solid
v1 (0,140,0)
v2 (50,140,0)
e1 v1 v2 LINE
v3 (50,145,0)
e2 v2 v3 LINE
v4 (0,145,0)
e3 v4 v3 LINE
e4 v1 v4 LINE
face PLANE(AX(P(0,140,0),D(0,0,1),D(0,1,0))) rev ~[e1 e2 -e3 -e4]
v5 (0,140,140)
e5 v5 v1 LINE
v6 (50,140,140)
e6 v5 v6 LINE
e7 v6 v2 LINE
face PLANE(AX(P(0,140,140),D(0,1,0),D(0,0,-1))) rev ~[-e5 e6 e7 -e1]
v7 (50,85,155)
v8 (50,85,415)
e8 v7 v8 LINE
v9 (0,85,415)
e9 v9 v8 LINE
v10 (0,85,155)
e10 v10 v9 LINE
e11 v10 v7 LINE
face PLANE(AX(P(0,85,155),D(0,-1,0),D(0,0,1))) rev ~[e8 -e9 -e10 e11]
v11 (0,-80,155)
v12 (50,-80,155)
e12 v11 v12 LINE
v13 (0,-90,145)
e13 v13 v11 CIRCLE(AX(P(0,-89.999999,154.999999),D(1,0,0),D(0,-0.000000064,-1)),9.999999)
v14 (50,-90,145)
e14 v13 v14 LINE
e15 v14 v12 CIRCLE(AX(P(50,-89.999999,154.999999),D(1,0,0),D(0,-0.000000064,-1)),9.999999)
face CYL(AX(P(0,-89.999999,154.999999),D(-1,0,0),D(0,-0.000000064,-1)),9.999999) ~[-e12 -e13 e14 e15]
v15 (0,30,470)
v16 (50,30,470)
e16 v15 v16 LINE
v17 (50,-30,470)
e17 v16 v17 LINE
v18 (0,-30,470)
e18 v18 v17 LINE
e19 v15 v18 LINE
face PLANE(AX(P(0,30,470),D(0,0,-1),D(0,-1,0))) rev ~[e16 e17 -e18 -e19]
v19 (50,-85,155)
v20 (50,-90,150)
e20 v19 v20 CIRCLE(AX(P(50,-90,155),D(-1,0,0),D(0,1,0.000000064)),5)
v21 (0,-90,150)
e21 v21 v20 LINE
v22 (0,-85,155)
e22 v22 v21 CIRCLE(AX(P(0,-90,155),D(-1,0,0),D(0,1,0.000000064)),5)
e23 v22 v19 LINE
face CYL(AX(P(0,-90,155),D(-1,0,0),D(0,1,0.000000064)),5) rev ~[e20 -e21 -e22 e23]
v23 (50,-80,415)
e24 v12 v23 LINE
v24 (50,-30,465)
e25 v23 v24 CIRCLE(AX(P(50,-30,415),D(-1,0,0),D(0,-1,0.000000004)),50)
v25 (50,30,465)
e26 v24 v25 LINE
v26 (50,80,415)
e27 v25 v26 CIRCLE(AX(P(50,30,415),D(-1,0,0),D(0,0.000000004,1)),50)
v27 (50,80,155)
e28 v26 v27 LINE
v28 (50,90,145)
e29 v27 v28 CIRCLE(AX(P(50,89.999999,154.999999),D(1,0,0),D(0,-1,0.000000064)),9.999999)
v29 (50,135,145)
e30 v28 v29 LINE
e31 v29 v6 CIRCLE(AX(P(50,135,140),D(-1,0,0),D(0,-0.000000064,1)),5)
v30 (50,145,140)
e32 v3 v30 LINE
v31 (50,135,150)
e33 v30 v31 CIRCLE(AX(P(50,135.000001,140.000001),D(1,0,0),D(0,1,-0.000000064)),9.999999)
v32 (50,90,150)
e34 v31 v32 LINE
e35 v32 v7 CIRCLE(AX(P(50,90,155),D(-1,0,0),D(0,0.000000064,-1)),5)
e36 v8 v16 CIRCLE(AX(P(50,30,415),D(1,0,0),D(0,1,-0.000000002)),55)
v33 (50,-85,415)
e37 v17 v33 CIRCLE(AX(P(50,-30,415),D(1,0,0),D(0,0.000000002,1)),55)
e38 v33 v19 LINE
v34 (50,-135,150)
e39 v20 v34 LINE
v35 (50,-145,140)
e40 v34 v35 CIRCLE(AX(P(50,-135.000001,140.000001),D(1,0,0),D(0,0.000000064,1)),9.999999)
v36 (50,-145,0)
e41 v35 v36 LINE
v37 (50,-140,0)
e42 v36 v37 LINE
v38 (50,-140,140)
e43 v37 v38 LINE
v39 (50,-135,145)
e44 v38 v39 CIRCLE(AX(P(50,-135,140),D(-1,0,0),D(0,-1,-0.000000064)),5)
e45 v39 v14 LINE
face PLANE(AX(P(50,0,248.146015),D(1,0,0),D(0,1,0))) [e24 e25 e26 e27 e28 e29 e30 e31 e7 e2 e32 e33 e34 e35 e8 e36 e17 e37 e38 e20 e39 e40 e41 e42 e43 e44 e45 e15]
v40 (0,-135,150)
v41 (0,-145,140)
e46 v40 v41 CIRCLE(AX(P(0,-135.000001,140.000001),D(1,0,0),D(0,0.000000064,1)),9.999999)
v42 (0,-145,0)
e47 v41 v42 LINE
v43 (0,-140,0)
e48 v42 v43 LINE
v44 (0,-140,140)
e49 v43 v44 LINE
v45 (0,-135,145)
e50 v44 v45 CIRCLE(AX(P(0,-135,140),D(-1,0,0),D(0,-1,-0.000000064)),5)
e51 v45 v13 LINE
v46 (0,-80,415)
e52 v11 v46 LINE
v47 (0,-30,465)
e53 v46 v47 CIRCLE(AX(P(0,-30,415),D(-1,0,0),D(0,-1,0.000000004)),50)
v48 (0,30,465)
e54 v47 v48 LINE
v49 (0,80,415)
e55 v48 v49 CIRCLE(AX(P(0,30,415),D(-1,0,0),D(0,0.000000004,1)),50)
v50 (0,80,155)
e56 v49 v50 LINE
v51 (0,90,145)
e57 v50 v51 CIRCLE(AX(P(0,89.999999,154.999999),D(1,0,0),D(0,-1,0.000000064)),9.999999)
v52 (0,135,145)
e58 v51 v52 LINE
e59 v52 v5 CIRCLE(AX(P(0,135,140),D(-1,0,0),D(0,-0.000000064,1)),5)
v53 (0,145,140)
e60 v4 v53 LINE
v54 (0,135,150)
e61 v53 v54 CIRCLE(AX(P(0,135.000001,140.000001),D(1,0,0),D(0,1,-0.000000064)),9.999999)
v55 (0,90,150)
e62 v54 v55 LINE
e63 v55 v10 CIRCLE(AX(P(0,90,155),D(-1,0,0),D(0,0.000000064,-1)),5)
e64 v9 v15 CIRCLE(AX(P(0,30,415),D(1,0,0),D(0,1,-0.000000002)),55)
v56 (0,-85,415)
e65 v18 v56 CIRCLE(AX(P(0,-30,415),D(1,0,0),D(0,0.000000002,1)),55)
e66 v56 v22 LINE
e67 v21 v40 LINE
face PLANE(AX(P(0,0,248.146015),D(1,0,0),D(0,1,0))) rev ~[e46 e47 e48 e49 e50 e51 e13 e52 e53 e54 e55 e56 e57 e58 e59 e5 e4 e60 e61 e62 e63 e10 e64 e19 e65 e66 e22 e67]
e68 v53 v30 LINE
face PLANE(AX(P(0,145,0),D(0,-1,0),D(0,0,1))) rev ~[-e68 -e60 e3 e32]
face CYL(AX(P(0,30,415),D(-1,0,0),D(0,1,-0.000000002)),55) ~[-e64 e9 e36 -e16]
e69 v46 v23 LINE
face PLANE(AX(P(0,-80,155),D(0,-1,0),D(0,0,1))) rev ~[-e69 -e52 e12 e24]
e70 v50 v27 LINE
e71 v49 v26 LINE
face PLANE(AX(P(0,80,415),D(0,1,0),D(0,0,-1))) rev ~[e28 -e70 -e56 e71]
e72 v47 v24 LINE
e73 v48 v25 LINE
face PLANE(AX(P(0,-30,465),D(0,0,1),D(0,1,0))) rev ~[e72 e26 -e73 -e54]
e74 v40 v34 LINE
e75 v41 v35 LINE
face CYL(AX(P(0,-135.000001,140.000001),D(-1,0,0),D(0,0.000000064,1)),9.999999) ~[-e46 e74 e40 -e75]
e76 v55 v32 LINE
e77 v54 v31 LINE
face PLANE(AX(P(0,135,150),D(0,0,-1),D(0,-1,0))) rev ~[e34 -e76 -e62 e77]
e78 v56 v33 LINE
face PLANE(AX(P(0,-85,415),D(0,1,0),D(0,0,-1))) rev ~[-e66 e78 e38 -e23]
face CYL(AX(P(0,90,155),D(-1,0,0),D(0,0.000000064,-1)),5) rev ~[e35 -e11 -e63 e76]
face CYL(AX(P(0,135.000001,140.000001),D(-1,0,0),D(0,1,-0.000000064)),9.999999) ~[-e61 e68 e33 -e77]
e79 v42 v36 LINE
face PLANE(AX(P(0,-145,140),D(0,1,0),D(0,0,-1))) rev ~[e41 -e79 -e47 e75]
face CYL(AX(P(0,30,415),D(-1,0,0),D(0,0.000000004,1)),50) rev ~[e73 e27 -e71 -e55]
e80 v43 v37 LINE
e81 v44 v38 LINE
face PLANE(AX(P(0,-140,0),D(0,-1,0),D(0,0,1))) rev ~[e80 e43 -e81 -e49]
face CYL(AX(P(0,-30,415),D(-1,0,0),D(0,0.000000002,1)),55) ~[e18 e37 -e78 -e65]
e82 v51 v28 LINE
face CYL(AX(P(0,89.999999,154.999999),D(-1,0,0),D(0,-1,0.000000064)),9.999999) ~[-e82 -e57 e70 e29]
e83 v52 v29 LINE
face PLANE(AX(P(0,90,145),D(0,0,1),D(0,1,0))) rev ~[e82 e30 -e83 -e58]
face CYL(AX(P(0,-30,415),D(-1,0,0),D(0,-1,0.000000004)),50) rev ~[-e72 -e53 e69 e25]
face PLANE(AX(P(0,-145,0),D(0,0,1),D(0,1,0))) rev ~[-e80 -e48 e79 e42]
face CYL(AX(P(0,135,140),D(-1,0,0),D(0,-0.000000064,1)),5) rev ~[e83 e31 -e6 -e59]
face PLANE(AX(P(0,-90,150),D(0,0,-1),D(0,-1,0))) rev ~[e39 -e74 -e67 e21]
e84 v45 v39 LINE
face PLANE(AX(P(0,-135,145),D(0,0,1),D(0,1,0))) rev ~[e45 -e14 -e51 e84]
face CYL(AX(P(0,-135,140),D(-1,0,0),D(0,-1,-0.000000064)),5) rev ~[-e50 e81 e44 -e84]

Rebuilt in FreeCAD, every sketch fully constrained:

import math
import FreeCAD as App
import Part
import Sketcher

doc = App.newDocument("Part")
body = doc.addObject("PartDesign::Body", "Body")

# Sketch on YZ plane
sketch1 = body.newObject("Sketcher::SketchObject", "Sketch")
sketch1.AttachmentSupport = (doc.getObject("YZ_Plane"), [""])
sketch1.MapMode = "FlatFace"
sketch1.addGeometry([
    Part.LineSegment(App.Vector(-145, 140, 0), App.Vector(-145, 0, 0)),  # 0
    Part.LineSegment(App.Vector(-145, 0, 0), App.Vector(-140, 0, 0)),  # 1
    Part.LineSegment(App.Vector(-140, 0, 0), App.Vector(-140, 140, 0)),  # 2
    Part.ArcOfCircle(Part.Circle(App.Vector(-135, 140, 0), App.Vector(0, 0, 1), 5), math.radians(89.999996), math.radians(180.000004)),  # 3
    Part.LineSegment(App.Vector(-135, 145, 0), App.Vector(-90, 145, 0)),  # 4
    Part.ArcOfCircle(Part.Circle(App.Vector(-89.999999, 154.999999, 0), App.Vector(0, 0, 1), 9.999999), math.radians(-90.000004), math.radians(0.000004)),  # 5
    Part.LineSegment(App.Vector(-80, 155, 0), App.Vector(-80, 415, 0)),  # 6
    Part.ArcOfCircle(Part.Circle(App.Vector(-30, 415, 0), App.Vector(0, 0, 1), 50), math.radians(90), math.radians(180)),  # 7
    Part.LineSegment(App.Vector(-30, 465, 0), App.Vector(30, 465, 0)),  # 8
    Part.ArcOfCircle(Part.Circle(App.Vector(30, 415, 0), App.Vector(0, 0, 1), 50), math.radians(0), math.radians(90)),  # 9
    Part.LineSegment(App.Vector(80, 415, 0), App.Vector(80, 155, 0)),  # 10
    Part.ArcOfCircle(Part.Circle(App.Vector(89.999999, 154.999999, 0), App.Vector(0, 0, 1), 9.999999), math.radians(179.999996), math.radians(270.000004)),  # 11
    Part.LineSegment(App.Vector(90, 145, 0), App.Vector(135, 145, 0)),  # 12
    Part.ArcOfCircle(Part.Circle(App.Vector(135, 140, 0), App.Vector(0, 0, 1), 5), math.radians(-0.000004), math.radians(90.000004)),  # 13
    Part.LineSegment(App.Vector(140, 140, 0), App.Vector(140, 0, 0)),  # 14
    Part.LineSegment(App.Vector(140, 0, 0), App.Vector(145, 0, 0)),  # 15
    Part.LineSegment(App.Vector(145, 0, 0), App.Vector(145, 140, 0)),  # 16
    Part.ArcOfCircle(Part.Circle(App.Vector(135.000001, 140.000001, 0), App.Vector(0, 0, 1), 9.999999), math.radians(-0.000004), math.radians(90.000004)),  # 17
    Part.LineSegment(App.Vector(135, 150, 0), App.Vector(90, 150, 0)),  # 18
    Part.ArcOfCircle(Part.Circle(App.Vector(90, 155, 0), App.Vector(0, 0, 1), 5), math.radians(179.999996), math.radians(270.000004)),  # 19
    Part.LineSegment(App.Vector(85, 155, 0), App.Vector(85, 415, 0)),  # 20
    Part.ArcOfCircle(Part.Circle(App.Vector(30, 415, 0), App.Vector(0, 0, 1), 55), math.radians(0), math.radians(90)),  # 21
    Part.LineSegment(App.Vector(30, 470, 0), App.Vector(-30, 470, 0)),  # 22
    Part.ArcOfCircle(Part.Circle(App.Vector(-30, 415, 0), App.Vector(0, 0, 1), 55), math.radians(90), math.radians(180)),  # 23
    Part.LineSegment(App.Vector(-85, 415, 0), App.Vector(-85, 155, 0)),  # 24
    Part.ArcOfCircle(Part.Circle(App.Vector(-90, 155, 0), App.Vector(0, 0, 1), 5), math.radians(-90.000004), math.radians(0.000004)),  # 25
    Part.LineSegment(App.Vector(-90, 150, 0), App.Vector(-135, 150, 0)),  # 26
    Part.ArcOfCircle(Part.Circle(App.Vector(-135.000001, 140.000001, 0), App.Vector(0, 0, 1), 9.999999), math.radians(89.999996), math.radians(180.000004)),  # 27
], False)
sketch1.addConstraint([
    Sketcher.Constraint("Coincident", 0, 2, 1, 1),
    Sketcher.Constraint("Coincident", 1, 2, 2, 1),
    Sketcher.Constraint("Tangent", 2, 2, 3, 2),
    Sketcher.Constraint("Tangent", 3, 1, 4, 1),
    Sketcher.Constraint("Tangent", 4, 2, 5, 1),
    Sketcher.Constraint("Tangent", 5, 2, 6, 1),
    Sketcher.Constraint("Tangent", 6, 2, 7, 2),
    Sketcher.Constraint("Tangent", 7, 1, 8, 1),
    Sketcher.Constraint("Tangent", 8, 2, 9, 2),
    Sketcher.Constraint("Tangent", 9, 1, 10, 1),
    Sketcher.Constraint("Tangent", 10, 2, 11, 1),
    Sketcher.Constraint("Tangent", 11, 2, 12, 1),
    Sketcher.Constraint("Tangent", 12, 2, 13, 2),
    Sketcher.Constraint("Tangent", 13, 1, 14, 1),
    Sketcher.Constraint("Coincident", 14, 2, 15, 1),
    Sketcher.Constraint("Coincident", 15, 2, 16, 1),
    Sketcher.Constraint("Tangent", 16, 2, 17, 1),
    Sketcher.Constraint("Tangent", 17, 2, 18, 1),
    Sketcher.Constraint("Tangent", 18, 2, 19, 2),
    Sketcher.Constraint("Tangent", 19, 1, 20, 1),
    Sketcher.Constraint("Tangent", 20, 2, 21, 1),
    Sketcher.Constraint("Tangent", 21, 2, 22, 1),
    Sketcher.Constraint("Tangent", 22, 2, 23, 1),
    Sketcher.Constraint("Tangent", 23, 2, 24, 1),
    Sketcher.Constraint("Tangent", 24, 2, 25, 2),
    Sketcher.Constraint("Tangent", 25, 1, 26, 1),
    Sketcher.Constraint("Tangent", 26, 2, 27, 1),
    Sketcher.Constraint("Tangent", 27, 2, 0, 1),
    Sketcher.Constraint("Vertical", 0),
    Sketcher.Constraint("Horizontal", 1),
    Sketcher.Constraint("Vertical", 2),
    Sketcher.Constraint("Horizontal", 4),
    Sketcher.Constraint("Vertical", 6),
    Sketcher.Constraint("Horizontal", 8),
    Sketcher.Constraint("Vertical", 10),
    Sketcher.Constraint("Horizontal", 12),
    Sketcher.Constraint("Vertical", 14),
    Sketcher.Constraint("Horizontal", 15),
    Sketcher.Constraint("Vertical", 16),
    Sketcher.Constraint("Horizontal", 18),
    Sketcher.Constraint("Vertical", 20),
    Sketcher.Constraint("Horizontal", 22),
    Sketcher.Constraint("Vertical", 24),
    Sketcher.Constraint("Horizontal", 26),
    Sketcher.Constraint("Coincident", 17, 3, 13, 3),
    Sketcher.Constraint("Coincident", 19, 3, 11, 3),
    Sketcher.Constraint("Coincident", 21, 3, 9, 3),
    Sketcher.Constraint("Coincident", 23, 3, 7, 3),
    Sketcher.Constraint("Coincident", 25, 3, 5, 3),
    Sketcher.Constraint("Coincident", 27, 3, 3, 3),
    Sketcher.Constraint("Equal", 7, 9),
    Sketcher.Constraint("Equal", 5, 11),
    Sketcher.Constraint("Equal", 3, 13),
    Sketcher.Constraint("Equal", 11, 17),
    Sketcher.Constraint("Symmetric", 1, 2, 14, 2, -1, 1),
    Sketcher.Constraint("Symmetric", 5, 3, 11, 3, -2),
    Sketcher.Constraint("PointOnObject", 0, 2, -1),
    Sketcher.Constraint("Radius", 3, 5.0),
    Sketcher.Constraint("Radius", 5, 9.999999),
    Sketcher.Constraint("Radius", 7, 50.0),
    Sketcher.Constraint("DistanceX", 4, 1, 4, 2, 45.0),
    Sketcher.Constraint("DistanceX", 8, 1, 8, 2, 60.0),
    Sketcher.Constraint("DistanceY", 0, 2, 0, 1, 140.0),
    Sketcher.Constraint("DistanceY", 6, 1, 6, 2, 260.0),
])
pad1 = body.newObject("PartDesign::Pad", "Pad")
pad1.Profile = sketch1
pad1.Length = 50

doc.recompute()
